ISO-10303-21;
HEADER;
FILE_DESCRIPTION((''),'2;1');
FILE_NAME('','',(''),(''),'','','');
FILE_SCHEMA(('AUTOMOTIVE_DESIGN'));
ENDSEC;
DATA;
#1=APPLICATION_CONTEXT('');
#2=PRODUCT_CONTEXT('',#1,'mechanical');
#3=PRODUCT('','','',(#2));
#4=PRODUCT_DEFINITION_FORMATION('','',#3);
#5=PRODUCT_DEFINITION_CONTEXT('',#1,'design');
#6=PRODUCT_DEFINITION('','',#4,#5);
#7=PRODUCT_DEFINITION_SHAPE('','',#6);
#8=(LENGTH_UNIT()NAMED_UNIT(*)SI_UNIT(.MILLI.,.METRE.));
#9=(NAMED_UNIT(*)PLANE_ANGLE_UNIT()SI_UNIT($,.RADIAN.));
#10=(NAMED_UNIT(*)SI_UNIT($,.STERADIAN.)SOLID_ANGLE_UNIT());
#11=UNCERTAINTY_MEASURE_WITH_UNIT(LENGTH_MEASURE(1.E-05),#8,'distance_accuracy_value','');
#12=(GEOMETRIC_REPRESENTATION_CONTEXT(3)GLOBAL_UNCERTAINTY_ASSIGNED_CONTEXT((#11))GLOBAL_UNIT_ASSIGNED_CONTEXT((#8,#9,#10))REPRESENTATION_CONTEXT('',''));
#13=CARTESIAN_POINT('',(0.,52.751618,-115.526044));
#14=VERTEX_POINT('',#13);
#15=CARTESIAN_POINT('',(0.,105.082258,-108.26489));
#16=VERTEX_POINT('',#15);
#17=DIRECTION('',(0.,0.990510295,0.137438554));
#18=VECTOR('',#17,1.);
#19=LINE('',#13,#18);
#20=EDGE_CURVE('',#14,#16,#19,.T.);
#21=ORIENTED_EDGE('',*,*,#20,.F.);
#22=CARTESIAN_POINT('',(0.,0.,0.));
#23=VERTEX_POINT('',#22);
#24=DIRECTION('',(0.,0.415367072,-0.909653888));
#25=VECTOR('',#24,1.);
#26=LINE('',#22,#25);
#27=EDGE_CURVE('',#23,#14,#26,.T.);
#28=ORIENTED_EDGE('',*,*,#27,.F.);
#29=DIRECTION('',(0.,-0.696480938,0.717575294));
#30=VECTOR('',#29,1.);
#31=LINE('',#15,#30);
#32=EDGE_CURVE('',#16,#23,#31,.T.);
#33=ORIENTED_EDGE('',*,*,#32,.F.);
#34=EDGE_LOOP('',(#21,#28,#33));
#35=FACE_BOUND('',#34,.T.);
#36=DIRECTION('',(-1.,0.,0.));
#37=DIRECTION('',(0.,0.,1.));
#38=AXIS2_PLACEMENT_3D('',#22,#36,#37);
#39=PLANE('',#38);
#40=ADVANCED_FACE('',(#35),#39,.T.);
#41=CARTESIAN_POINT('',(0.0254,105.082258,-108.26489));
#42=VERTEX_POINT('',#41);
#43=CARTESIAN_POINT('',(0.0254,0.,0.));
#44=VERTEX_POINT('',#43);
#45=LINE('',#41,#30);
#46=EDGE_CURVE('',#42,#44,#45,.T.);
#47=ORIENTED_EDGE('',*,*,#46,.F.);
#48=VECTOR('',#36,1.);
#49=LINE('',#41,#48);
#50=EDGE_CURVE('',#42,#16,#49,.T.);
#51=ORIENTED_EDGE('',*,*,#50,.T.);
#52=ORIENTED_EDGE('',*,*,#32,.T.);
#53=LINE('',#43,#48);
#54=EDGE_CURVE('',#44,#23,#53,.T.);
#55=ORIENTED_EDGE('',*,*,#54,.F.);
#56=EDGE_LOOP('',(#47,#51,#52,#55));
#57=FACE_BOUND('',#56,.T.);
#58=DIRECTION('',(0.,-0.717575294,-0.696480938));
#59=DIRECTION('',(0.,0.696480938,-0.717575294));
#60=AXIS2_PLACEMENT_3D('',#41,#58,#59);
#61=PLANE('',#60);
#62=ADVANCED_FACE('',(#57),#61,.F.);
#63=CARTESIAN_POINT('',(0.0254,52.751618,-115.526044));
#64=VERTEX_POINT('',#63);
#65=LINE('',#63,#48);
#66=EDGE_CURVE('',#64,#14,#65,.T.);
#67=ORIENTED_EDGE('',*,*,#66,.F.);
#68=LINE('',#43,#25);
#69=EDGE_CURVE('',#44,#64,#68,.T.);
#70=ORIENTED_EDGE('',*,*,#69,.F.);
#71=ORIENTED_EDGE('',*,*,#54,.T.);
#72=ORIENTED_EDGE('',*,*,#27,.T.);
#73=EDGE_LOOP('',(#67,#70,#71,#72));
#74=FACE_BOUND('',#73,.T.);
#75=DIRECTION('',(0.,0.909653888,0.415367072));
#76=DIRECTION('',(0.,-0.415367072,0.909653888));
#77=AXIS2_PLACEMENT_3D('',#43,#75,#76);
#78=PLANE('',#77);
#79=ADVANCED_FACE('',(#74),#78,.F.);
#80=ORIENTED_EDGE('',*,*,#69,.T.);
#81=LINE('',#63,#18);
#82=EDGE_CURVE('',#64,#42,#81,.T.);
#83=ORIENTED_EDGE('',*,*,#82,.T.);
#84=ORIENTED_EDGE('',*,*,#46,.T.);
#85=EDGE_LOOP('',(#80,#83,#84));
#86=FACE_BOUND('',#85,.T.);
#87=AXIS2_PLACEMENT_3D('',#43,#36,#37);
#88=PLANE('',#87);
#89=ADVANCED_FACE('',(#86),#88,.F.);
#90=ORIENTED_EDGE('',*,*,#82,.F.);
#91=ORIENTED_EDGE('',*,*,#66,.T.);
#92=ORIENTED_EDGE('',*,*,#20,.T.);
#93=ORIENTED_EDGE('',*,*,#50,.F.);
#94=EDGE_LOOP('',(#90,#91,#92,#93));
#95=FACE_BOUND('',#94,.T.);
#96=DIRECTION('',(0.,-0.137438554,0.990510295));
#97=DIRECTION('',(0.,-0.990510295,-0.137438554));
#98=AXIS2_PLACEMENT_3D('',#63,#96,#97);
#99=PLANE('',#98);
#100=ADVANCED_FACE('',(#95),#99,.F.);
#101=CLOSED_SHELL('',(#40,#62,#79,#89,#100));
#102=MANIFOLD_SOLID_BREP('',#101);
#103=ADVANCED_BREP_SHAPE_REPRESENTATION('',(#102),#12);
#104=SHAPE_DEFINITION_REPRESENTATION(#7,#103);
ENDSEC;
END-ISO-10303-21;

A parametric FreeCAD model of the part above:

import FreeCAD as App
import Part
import Sketcher

V = App.Vector
Q = App.Units.Quantity

doc = App.newDocument("Part")
body = doc.addObject("PartDesign::Body", "Body")

# Sketch on YZ plane
sketch1 = body.newObject("Sketcher::SketchObject", "Sketch")
sketch1.AttachmentSupport = (doc.getObject("YZ_Plane"), [""])
sketch1.MapMode = "FlatFace"
sketch1.addGeometry(Part.LineSegment(V(0, 0, 0), V(52.751618, -115.526044, 0)), False)
sketch1.addGeometry(Part.LineSegment(V(52.751618, -115.526044, 0), V(105.082258, -108.26489, 0)), False)
sketch1.addGeometry(Part.LineSegment(V(105.082258, -108.26489, 0), V(0, 0, 0)), False)
sketch1.addConstraint(Sketcher.Constraint("Coincident", 0, 2, 1, 1))
sketch1.addConstraint(Sketcher.Constraint("Coincident", 1, 2, 2, 1))
sketch1.addConstraint(Sketcher.Constraint("Coincident", 2, 2, 0, 1))
sketch1.addConstraint(Sketcher.Constraint("Coincident", 2, 2, -1, 1))
sketch1.addConstraint(Sketcher.Constraint("Distance", 0, Q("5 in")))
sketch1.addConstraint(Sketcher.Constraint("Distance", 1, Q("2.08 in")))
sketch1.addConstraint(Sketcher.Constraint("Distance", 2, Q("5.94 in")))
sketch1.addConstraint(Sketcher.Constraint("DistanceX", -1, 1, 0, 2, Q("52.751618 mm")))
pad1 = body.newObject("PartDesign::Pad", "Pad")
pad1.Profile = sketch1
pad1.Length = Q("0.001 in")

doc.recompute()
